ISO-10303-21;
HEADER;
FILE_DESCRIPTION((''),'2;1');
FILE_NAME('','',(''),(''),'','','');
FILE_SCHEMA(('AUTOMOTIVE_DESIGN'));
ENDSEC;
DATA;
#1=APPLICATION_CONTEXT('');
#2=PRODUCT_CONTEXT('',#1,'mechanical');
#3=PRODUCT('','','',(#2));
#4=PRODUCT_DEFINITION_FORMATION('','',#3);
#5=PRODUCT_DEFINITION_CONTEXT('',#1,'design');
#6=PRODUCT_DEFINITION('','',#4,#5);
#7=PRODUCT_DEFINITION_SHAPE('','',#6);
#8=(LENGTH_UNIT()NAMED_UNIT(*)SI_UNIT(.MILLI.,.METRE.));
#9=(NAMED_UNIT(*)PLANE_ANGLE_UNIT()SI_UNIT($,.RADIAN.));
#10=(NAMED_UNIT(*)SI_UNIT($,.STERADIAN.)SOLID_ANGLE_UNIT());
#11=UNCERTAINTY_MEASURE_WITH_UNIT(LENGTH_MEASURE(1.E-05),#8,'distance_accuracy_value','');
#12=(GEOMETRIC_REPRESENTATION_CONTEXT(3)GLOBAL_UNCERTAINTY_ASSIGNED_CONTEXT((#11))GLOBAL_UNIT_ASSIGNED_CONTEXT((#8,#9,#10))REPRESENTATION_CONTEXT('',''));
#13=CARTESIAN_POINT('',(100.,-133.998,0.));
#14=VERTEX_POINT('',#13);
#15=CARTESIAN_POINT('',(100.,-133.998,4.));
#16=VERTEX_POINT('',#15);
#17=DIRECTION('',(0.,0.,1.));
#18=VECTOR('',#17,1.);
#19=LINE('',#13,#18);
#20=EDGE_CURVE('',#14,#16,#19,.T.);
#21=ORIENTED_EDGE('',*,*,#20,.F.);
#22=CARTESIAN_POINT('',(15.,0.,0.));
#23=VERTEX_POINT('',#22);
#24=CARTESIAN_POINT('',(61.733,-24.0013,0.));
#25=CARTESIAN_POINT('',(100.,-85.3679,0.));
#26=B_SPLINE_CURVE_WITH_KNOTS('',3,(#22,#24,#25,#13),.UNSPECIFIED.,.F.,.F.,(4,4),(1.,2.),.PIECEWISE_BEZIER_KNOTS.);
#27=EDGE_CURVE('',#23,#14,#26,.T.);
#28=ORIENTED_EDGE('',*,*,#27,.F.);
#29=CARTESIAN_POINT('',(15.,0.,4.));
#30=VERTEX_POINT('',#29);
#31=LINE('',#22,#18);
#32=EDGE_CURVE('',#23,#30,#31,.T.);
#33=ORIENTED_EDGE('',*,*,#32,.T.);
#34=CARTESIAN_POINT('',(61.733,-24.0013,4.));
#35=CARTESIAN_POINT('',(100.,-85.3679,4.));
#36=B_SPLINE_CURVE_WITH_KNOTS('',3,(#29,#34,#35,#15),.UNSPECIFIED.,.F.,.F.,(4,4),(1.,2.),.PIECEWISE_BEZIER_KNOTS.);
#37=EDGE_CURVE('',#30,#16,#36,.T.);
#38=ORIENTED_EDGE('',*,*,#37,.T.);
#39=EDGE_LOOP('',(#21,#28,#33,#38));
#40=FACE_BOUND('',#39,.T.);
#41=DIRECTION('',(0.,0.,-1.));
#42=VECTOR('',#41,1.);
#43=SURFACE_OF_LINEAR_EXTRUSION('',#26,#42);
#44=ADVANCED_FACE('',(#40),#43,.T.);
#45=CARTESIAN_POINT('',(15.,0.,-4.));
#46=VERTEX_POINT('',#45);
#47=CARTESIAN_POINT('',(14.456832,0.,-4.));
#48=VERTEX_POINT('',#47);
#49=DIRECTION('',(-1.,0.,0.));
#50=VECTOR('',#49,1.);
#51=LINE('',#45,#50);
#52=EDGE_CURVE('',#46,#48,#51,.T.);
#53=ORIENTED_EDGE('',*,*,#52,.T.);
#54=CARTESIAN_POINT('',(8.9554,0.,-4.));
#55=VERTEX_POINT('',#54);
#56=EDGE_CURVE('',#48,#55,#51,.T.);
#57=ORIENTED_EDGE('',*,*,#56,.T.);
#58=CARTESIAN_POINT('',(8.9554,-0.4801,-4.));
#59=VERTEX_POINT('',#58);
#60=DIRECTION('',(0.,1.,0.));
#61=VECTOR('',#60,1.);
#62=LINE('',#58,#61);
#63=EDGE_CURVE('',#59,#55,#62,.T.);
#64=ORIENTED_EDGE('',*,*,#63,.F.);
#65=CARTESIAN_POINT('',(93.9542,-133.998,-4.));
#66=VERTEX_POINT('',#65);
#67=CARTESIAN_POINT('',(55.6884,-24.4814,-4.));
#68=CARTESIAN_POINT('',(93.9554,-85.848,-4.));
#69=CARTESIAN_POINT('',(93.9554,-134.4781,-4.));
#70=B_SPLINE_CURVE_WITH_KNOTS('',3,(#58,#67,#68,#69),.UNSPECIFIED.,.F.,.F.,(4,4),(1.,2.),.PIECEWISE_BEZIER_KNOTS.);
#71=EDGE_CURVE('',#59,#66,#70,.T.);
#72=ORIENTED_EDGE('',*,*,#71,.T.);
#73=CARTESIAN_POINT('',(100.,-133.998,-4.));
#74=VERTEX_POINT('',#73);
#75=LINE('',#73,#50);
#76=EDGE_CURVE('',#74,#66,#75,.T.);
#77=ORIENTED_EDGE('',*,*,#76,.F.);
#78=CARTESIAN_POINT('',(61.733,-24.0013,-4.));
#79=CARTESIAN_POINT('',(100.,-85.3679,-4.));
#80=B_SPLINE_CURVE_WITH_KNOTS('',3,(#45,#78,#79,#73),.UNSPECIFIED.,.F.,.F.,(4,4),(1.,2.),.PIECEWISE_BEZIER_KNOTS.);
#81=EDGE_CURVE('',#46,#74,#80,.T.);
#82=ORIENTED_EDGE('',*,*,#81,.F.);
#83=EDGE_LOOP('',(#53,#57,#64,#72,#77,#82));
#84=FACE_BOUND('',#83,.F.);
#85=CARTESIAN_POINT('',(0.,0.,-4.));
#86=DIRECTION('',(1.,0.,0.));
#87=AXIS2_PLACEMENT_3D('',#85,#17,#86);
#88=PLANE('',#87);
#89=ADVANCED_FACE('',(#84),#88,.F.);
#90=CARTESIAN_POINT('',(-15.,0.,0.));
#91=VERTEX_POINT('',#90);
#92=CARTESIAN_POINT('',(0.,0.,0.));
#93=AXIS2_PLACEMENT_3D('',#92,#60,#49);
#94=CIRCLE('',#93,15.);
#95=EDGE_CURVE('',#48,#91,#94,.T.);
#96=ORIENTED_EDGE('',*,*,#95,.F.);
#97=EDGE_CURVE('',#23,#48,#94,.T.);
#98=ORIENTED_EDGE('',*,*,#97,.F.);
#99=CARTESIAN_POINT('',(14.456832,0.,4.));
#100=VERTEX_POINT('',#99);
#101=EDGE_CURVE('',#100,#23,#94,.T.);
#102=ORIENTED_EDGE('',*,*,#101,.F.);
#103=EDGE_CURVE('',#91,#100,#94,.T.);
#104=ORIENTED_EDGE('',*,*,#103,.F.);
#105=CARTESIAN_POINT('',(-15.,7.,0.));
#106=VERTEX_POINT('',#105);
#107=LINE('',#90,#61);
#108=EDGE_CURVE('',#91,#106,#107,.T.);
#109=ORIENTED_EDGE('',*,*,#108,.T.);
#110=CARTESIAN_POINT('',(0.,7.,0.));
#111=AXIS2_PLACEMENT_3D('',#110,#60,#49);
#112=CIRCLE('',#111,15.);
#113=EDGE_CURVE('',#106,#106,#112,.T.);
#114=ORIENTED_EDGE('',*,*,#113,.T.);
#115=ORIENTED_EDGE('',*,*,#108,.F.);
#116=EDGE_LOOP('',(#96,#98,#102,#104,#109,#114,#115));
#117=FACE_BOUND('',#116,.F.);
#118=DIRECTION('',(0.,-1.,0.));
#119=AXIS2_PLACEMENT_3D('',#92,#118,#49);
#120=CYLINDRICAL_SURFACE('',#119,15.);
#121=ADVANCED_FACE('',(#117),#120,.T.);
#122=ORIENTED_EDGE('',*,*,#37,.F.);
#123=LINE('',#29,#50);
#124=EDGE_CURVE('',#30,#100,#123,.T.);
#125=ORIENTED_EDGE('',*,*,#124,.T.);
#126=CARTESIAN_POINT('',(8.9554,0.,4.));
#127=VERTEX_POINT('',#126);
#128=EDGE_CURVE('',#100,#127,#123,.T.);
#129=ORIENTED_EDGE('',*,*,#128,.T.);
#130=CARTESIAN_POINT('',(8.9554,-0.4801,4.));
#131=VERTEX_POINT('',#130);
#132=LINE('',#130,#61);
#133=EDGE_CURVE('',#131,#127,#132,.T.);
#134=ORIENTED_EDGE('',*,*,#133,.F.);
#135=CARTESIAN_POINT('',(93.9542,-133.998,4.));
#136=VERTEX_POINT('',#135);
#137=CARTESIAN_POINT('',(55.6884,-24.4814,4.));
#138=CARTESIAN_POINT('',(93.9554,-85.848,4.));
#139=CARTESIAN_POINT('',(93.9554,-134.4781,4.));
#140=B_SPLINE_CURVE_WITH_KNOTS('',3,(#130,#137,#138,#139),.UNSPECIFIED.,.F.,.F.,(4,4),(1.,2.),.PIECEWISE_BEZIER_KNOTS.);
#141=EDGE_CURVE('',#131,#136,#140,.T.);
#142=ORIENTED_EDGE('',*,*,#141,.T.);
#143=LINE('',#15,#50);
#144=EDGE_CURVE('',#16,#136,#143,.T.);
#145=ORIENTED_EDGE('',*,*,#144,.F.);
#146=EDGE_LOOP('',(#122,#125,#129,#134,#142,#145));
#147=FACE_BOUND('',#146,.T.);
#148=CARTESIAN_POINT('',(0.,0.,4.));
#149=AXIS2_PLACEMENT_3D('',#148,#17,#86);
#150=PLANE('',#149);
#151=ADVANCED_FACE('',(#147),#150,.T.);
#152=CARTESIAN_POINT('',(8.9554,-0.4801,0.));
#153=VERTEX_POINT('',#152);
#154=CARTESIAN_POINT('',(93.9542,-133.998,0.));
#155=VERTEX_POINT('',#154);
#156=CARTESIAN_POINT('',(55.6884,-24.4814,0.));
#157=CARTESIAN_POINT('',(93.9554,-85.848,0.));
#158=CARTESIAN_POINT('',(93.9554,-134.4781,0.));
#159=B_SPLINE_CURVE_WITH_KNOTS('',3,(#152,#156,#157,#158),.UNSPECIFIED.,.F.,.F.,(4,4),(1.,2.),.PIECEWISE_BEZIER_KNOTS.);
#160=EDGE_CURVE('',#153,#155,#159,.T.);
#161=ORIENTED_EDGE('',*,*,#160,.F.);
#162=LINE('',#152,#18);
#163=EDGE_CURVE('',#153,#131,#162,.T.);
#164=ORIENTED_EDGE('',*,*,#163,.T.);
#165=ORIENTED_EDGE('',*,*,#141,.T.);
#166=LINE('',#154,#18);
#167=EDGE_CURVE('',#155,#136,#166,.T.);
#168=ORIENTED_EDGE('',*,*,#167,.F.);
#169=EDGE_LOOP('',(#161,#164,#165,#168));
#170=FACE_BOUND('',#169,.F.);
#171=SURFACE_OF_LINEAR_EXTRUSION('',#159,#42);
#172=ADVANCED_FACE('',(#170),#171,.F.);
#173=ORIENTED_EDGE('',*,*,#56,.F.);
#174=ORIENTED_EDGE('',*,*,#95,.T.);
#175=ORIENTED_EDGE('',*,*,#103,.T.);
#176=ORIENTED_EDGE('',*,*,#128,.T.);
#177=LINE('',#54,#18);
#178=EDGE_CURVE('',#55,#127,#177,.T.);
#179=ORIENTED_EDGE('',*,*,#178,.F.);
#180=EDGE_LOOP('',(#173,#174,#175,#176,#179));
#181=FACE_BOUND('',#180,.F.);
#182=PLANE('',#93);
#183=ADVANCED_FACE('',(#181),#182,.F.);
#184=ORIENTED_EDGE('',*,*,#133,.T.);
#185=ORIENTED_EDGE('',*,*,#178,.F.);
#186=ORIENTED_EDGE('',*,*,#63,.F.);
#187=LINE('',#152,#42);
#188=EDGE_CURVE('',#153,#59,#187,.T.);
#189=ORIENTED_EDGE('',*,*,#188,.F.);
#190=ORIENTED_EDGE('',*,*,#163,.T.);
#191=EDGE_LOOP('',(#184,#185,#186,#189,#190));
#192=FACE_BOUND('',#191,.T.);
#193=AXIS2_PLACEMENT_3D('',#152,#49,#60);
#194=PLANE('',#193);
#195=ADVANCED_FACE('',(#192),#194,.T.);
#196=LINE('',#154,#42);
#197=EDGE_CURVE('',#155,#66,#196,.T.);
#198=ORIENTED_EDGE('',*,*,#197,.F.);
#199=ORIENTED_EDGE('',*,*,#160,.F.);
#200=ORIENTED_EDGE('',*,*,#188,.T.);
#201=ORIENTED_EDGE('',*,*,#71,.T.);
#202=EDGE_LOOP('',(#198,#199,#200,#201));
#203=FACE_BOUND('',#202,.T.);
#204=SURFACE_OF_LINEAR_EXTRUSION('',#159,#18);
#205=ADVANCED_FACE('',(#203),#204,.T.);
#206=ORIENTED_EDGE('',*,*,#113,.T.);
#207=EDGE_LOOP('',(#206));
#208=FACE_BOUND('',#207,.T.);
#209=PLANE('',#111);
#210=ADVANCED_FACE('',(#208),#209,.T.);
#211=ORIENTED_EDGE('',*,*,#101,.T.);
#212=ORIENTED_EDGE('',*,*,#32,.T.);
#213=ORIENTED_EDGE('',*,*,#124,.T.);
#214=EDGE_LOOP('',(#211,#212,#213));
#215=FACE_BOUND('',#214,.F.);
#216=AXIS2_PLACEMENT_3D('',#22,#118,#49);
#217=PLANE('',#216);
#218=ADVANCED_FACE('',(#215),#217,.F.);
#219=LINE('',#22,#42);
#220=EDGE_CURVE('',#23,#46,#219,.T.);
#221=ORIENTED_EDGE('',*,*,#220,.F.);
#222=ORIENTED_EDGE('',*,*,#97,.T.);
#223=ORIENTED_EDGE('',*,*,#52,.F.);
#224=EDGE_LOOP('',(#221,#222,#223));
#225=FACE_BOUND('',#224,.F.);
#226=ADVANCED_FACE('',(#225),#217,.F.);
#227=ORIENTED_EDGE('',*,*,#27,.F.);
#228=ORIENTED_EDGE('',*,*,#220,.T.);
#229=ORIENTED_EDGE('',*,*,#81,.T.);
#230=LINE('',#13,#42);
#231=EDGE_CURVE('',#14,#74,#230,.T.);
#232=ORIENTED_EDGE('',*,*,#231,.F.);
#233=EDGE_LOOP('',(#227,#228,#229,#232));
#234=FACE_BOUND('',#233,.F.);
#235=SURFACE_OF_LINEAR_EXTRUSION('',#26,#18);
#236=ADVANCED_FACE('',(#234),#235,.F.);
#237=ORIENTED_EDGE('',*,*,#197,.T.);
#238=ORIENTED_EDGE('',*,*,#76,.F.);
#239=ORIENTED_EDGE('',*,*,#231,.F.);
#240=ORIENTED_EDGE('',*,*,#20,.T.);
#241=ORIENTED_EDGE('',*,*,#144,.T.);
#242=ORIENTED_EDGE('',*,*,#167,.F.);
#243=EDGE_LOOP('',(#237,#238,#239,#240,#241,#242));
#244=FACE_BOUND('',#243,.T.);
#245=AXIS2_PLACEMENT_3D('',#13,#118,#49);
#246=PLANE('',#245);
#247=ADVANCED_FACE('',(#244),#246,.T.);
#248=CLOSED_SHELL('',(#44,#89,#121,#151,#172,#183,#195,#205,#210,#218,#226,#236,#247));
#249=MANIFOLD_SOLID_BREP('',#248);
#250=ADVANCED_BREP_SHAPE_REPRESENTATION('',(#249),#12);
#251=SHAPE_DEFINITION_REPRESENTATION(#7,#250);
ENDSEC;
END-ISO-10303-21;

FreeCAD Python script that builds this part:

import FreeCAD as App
import Part
import Sketcher

V = App.Vector

doc = App.newDocument("Part")
params = doc.addObject("Spreadsheet::Sheet", "Params")
for row, (alias, value) in enumerate([
    ("sketch1_diameter", "30 mm"),
    ("pad1_length", "7 mm"),
    ("pad2_length", "8 mm"),
], start=1):
    params.set(f"A{row}", alias)
    params.set(f"B{row}", "=" + value)
    params.setAlias(f"B{row}", alias)

body = doc.addObject("PartDesign::Body", "Body")

sketch1 = body.newObject("Sketcher::SketchObject", "Sketch")
sketch1.AttachmentSupport = (doc.getObject("XZ_Plane"), [""])
sketch1.MapMode = "FlatFace"
sketch1.addGeometry(Part.Circle(V(0, 0, 0), V(0, 0, 1), 15), False)
sketch1.addConstraint([
    Sketcher.Constraint("Coincident", 0, 3, -1, 1),
    Sketcher.Constraint("Diameter", 0, 30.0),
])
sketch1.setExpression("Constraints[1]", "Params.sketch1_diameter")
pad1 = body.newObject("PartDesign::Pad", "Pad")
pad1.Profile = sketch1
pad1.setExpression("Length", "Params.pad1_length")
pad1.Reversed = True

sketch2 = body.newObject("Sketcher::SketchObject", "Sketch001")
sketch2.AttachmentSupport = (doc.getObject("XY_Plane"), [""])
sketch2.MapMode = "FlatFace"
sketch2.addGeometry([
    Part.BSplineCurve([V(15, 0, 0), V(61.733, -24.0013, 0), V(100, -85.3679, 0), V(100, -133.998, 0)], [4, 4], [1, 2], False, 3, [1, 1, 1, 1], False),
    Part.LineSegment(V(15, 0, 0), V(8.9554, 0, 0)),
    Part.LineSegment(V(8.9554, 0, 0), V(8.9554, -0.4801, 0)),
    Part.BSplineCurve([V(8.9554, -0.4801, 0), V(55.534742, -24.402484, 0), V(93.703664, -85.444856, 0), V(93.95416, -133.998, 0)], [4, 4], [1, 1.996711992], False, 3, [1, 1, 1, 1], False),
    Part.LineSegment(V(93.9542, -133.998, 0), V(100, -133.998, 0)),
], False)
sketch2.addConstraint([
    Sketcher.Constraint("Block", 0),
    Sketcher.Constraint("Block", 3),
    Sketcher.Constraint("Coincident", 0, 1, 1, 1),
    Sketcher.Constraint("Coincident", 1, 2, 2, 1),
    Sketcher.Constraint("Coincident", 2, 2, 3, 1),
    Sketcher.Constraint("Coincident", 3, 2, 4, 1),
    Sketcher.Constraint("Coincident", 4, 2, 0, 2),
    Sketcher.Constraint("Horizontal", 1),
    Sketcher.Constraint("Vertical", 2),
])
pad2 = body.newObject("PartDesign::Pad", "Pad001")
pad2.Profile = sketch2
pad2.setExpression("Length", "Params.pad2_length")
pad2.Midplane = True

doc.recompute()
